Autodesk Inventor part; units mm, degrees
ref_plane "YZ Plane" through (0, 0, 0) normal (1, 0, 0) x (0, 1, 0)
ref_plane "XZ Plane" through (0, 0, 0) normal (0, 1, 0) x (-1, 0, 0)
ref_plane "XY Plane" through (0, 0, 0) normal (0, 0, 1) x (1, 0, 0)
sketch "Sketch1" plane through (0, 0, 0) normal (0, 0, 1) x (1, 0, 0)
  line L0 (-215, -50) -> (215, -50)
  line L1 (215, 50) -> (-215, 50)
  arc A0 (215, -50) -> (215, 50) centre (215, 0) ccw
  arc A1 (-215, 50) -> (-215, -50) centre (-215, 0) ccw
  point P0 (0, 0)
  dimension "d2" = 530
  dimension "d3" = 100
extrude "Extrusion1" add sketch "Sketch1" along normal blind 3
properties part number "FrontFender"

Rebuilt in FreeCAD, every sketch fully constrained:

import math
import FreeCAD as App
import Part
import Sketcher

V = App.Vector

doc = App.newDocument("Part")
body = doc.addObject("PartDesign::Body", "Body")

# Sketch on XY plane
sketch1 = body.newObject("Sketcher::SketchObject", "Sketch")
sketch1.AttachmentSupport = (doc.getObject("XY_Plane"), [""])
sketch1.MapMode = "FlatFace"
sketch1.addGeometry([
    Part.ArcOfCircle(Part.Circle(V(-215, 0, 0), V(0, 0, 1), 50), math.radians(90), math.radians(270)),
    Part.LineSegment(V(-215, -50, 0), V(215, -50, 0)),
    Part.ArcOfCircle(Part.Circle(V(215, 0, 0), V(0, 0, 1), 50), math.radians(-90), math.radians(90)),
    Part.LineSegment(V(215, 50, 0), V(-215, 50, 0)),
], False)
sketch1.addConstraint([
    Sketcher.Constraint("Tangent", 0, 2, 1, 1),
    Sketcher.Constraint("Tangent", 1, 2, 2, 1),
    Sketcher.Constraint("Tangent", 2, 2, 3, 1),
    Sketcher.Constraint("Tangent", 3, 2, 0, 1),
    Sketcher.Constraint("Horizontal", 1),
    Sketcher.Constraint("Horizontal", 3),
    Sketcher.Constraint("Symmetric", 0, 3, 2, 3, -1, 1),
    Sketcher.Constraint("Radius", 0, 50.0),
    Sketcher.Constraint("DistanceX", 1, 1, 1, 2, 430.0),
])
pad1 = body.newObject("PartDesign::Pad", "Pad")
pad1.Profile = sketch1
pad1.Length = 3

doc.recompute()
